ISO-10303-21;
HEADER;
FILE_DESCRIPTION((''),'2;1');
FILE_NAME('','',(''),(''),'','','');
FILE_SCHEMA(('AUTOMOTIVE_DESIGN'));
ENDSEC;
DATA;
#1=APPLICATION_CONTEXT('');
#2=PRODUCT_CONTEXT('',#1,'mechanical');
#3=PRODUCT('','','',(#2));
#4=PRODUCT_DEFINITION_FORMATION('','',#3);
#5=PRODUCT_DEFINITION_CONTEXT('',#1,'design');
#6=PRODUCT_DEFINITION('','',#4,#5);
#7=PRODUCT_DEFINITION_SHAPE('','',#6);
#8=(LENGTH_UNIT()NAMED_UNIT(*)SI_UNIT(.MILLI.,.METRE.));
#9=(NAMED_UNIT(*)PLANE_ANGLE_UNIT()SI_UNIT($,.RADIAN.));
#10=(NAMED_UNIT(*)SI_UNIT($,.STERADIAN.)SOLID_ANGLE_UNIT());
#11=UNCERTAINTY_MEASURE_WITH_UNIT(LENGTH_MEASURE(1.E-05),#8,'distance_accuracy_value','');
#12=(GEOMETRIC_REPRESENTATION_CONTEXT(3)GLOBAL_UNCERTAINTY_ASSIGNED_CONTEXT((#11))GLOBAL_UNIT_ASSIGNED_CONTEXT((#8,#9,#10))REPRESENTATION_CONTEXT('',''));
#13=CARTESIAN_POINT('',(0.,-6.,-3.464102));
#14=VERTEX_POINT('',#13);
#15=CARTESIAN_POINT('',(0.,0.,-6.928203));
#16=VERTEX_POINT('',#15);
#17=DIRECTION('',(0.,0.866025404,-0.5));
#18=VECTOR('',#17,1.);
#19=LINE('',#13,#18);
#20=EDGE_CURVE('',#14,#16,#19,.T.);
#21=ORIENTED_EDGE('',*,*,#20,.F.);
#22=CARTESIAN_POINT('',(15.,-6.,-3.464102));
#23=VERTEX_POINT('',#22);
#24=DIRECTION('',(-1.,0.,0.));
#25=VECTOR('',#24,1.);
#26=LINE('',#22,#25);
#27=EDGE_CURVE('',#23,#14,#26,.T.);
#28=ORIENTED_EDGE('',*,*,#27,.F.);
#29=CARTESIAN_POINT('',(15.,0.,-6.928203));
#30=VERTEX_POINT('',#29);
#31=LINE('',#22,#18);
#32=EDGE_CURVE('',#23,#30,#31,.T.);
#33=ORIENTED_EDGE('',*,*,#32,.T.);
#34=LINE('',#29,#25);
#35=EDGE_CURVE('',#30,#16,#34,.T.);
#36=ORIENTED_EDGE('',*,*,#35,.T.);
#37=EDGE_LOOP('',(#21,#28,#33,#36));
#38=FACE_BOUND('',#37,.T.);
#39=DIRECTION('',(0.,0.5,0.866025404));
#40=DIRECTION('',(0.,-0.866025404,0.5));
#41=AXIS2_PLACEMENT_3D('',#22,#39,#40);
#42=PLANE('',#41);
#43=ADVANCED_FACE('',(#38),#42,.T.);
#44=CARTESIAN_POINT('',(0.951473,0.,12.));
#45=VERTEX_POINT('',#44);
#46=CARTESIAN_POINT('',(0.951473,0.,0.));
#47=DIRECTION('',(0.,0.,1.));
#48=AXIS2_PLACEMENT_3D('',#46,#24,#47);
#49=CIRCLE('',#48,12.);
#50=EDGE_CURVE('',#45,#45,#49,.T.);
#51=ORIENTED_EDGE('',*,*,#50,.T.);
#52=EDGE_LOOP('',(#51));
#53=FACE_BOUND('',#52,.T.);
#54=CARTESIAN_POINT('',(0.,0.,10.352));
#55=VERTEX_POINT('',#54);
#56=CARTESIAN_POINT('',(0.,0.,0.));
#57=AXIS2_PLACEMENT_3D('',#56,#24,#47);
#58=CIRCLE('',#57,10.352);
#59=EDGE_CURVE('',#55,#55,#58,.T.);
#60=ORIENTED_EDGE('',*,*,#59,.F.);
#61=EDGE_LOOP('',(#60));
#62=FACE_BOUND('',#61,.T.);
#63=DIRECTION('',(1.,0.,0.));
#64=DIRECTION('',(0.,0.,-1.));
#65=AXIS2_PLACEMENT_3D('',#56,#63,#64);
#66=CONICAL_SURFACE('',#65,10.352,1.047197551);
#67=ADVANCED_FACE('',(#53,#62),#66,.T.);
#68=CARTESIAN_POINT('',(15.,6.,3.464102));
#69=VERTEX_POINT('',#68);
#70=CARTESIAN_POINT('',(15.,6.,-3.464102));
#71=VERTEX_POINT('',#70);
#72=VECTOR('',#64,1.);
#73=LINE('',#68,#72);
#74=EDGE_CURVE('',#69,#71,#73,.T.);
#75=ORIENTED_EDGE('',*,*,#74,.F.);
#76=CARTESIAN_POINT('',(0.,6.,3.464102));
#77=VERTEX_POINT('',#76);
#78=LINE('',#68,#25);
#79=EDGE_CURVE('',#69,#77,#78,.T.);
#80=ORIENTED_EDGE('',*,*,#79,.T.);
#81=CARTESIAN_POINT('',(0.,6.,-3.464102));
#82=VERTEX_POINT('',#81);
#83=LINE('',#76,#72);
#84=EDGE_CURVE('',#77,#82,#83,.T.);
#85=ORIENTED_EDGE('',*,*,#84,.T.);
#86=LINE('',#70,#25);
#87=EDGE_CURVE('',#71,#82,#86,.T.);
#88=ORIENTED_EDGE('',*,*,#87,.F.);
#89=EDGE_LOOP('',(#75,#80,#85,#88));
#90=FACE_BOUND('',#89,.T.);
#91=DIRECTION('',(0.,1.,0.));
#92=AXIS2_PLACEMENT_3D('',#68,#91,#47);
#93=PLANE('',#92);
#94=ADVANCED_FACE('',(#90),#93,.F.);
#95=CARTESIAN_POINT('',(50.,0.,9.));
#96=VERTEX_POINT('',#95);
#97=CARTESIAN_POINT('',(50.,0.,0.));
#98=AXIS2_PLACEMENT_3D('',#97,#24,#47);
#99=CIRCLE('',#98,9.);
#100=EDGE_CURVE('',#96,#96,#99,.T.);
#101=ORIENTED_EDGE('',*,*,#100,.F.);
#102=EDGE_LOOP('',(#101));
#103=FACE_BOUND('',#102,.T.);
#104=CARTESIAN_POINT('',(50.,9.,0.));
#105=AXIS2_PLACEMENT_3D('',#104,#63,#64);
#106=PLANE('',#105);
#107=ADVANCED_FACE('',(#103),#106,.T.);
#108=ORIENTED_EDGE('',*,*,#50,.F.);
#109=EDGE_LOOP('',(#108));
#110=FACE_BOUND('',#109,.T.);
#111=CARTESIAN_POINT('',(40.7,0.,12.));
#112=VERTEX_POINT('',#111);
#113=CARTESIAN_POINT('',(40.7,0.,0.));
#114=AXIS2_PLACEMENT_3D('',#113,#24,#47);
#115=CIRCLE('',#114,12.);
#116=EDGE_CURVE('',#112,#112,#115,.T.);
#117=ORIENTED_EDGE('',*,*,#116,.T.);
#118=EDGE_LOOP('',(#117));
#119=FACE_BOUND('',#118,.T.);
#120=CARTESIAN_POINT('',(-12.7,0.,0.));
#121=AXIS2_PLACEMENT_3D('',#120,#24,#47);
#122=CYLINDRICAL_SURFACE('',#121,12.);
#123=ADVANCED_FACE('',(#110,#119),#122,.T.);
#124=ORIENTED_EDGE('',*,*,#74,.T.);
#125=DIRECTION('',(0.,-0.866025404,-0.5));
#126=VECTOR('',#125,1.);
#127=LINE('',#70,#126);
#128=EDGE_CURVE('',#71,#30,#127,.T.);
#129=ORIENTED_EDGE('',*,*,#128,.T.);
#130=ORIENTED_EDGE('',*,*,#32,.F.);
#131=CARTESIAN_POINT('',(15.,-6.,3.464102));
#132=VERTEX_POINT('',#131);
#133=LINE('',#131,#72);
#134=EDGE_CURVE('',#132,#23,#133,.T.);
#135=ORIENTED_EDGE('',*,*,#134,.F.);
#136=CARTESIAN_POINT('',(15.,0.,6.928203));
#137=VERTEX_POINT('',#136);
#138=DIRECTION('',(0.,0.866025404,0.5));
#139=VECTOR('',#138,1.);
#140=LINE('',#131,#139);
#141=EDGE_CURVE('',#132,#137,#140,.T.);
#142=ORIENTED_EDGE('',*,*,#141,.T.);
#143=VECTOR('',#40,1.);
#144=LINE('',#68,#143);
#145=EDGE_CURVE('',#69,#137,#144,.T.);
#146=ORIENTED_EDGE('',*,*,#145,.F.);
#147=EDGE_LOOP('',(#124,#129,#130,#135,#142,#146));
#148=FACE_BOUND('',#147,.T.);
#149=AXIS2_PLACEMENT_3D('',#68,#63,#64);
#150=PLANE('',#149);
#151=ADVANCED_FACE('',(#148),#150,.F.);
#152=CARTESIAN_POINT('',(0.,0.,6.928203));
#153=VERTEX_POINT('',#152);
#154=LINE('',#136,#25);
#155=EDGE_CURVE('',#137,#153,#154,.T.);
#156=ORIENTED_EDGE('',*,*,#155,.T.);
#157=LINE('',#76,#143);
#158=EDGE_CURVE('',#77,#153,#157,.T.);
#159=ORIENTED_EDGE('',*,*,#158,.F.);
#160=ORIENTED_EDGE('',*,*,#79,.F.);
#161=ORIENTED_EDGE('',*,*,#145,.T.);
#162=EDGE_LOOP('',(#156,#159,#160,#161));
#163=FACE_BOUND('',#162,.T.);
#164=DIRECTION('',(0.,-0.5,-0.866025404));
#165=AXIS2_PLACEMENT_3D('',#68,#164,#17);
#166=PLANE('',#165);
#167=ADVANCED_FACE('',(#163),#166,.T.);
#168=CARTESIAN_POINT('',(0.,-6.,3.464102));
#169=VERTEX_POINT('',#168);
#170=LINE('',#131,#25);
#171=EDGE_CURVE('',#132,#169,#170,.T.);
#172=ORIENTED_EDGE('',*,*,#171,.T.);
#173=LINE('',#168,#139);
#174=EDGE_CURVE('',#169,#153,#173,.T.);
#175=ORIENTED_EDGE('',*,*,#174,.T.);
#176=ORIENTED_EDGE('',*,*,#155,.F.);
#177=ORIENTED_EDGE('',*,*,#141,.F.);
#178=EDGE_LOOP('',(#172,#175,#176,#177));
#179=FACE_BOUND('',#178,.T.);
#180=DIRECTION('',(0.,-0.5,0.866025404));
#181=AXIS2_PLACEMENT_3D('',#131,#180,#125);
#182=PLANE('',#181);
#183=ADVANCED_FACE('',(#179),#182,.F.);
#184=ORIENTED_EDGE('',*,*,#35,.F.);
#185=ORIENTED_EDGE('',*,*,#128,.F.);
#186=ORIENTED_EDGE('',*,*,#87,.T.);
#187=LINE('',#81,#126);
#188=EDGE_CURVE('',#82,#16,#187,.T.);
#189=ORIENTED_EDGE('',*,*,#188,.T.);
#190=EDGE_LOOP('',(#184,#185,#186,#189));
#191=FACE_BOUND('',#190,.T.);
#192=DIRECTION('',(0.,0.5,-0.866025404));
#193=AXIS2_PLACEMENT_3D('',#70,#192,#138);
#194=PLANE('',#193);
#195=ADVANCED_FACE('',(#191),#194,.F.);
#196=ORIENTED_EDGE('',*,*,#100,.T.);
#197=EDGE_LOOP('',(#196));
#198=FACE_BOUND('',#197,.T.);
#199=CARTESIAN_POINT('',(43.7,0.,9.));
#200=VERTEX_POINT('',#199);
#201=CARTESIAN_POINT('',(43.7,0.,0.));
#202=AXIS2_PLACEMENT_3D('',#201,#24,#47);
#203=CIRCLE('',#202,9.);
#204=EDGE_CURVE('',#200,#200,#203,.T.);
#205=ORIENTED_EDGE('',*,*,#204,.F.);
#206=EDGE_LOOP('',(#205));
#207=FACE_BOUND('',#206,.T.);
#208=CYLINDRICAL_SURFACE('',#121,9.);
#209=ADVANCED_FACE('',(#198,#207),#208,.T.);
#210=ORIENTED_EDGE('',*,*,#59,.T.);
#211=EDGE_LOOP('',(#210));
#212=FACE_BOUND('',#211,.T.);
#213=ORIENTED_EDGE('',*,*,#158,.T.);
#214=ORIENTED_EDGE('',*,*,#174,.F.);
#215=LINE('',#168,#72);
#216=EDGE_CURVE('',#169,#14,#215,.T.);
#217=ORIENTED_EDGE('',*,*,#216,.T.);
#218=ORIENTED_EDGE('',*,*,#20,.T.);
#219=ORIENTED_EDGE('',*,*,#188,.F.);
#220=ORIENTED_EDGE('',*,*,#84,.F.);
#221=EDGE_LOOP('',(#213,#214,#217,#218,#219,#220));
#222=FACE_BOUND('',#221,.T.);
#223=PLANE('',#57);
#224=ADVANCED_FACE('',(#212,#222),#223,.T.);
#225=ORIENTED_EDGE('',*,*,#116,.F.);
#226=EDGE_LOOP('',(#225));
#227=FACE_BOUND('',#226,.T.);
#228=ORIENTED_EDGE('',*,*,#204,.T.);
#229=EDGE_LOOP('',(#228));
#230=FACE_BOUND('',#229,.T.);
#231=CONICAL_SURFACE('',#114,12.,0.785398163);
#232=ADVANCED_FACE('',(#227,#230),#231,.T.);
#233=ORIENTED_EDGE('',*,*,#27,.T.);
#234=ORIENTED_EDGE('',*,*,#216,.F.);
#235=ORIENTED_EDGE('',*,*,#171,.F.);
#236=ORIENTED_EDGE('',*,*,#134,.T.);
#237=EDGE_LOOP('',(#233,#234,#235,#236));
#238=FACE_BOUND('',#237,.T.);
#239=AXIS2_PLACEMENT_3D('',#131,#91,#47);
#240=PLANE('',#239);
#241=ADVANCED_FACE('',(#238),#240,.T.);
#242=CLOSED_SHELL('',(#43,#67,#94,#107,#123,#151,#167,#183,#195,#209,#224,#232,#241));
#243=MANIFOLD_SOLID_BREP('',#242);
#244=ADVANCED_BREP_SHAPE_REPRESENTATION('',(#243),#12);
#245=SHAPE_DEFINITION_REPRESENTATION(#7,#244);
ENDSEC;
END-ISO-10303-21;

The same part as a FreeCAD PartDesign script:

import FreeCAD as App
import Part
import Sketcher
from FreeCAD import Vector
Q = App.Units.Quantity


def add_polygon(sketch, points):
    """Adds a closed chain of lines whose ends are joined by coincident constraints."""
    first, n = sketch.GeometryCount, len(points)
    for a, b in zip(points, points[1:] + points[:1]):
        sketch.addGeometry(Part.LineSegment(App.Vector(*a, 0), App.Vector(*b, 0)), False)
    for i in range(n):
        sketch.addConstraint(Sketcher.Constraint("Coincident", first + i, 2, first + (i + 1) % n, 1))

doc = App.newDocument("Part")
params = doc.addObject("Spreadsheet::Sheet", "Params")
for row, (alias, value) in enumerate([
    ("sketch1_width", "50 mm"),
    ("sketch1_height", "9 mm"),
    ("sketch1_width2", "6.3 mm"),
    ("revolution_angle", "360 deg"),
    ("pocket1_length", "15 mm"),
], start=1):
    params.set(f"A{row}", alias)
    params.set(f"B{row}", "=" + value)
    params.setAlias(f"B{row}", alias)

body = doc.addObject("PartDesign::Body", "Body")

# Sketch on XY plane
sketch1 = body.newObject("Sketcher::SketchObject", "Sketch")
sketch1.AttachmentSupport = (doc.getObject("XY_Plane"), [""])
sketch1.MapMode = "FlatFace"
add_polygon(sketch1, [(0, 10.4), (0, 0), (50, 0), (50, 9), (43.7, 9), (40.7, 12), (1, 12)])  # lines 0-6
sketch1.addConstraint(Sketcher.Constraint("Vertical", 0))
sketch1.addConstraint(Sketcher.Constraint("Horizontal", 1))
sketch1.addConstraint(Sketcher.Constraint("Vertical", 2))
sketch1.addConstraint(Sketcher.Constraint("Horizontal", 3))
sketch1.addConstraint(Sketcher.Constraint("Horizontal", 5))
sketch1.addConstraint(Sketcher.Constraint("Coincident", 0, 2, -1, 1))
sketch1.addConstraint(Sketcher.Constraint("DistanceX", 1, 1, 1, 2, 50.0))
sketch1.addConstraint(Sketcher.Constraint("DistanceY", 2, 1, 2, 2, 9.0))
sketch1.addConstraint(Sketcher.Constraint("Angle", 4, Q("135 deg")))
sketch1.addConstraint(Sketcher.Constraint("Angle", 6, Q("-120 deg")))
sketch1.addConstraint(Sketcher.Constraint("DistanceX", 3, 2, 3, 1, 6.3))
sketch1.addConstraint(Sketcher.Constraint("DistanceY", -1, 1, 4, 2, 12.0))
sketch1.addConstraint(Sketcher.Constraint("DistanceY", 0, 2, 0, 1, 10.352))
sketch1.setExpression("Constraints[13]", "Params.sketch1_width")
sketch1.setExpression("Constraints[14]", "Params.sketch1_height")
sketch1.setExpression("Constraints[17]", "Params.sketch1_width2")
revolution = body.newObject("PartDesign::Revolution", "Revolution")
revolution.Profile = sketch1
revolution.ReferenceAxis = (sketch1, ["H_Axis"])
revolution.setExpression("Angle", "Params.revolution_angle")

# Sketch on YZ plane
sketch2 = body.newObject("Sketcher::SketchObject", "Sketch001")
sketch2.AttachmentSupport = (doc.getObject("YZ_Plane"), [""])
sketch2.MapMode = "FlatFace"
add_polygon(sketch2, [(6, 3), (6, -3), (0, -7), (-6, -3), (-6, 3), (0, 7)])  # lines 0-5
sketch2.addConstraint(Sketcher.Constraint("Vertical", 0))
sketch2.addConstraint(Sketcher.Constraint("Vertical", 3))
sketch2.addConstraint(Sketcher.Constraint("Symmetric", 0, 2, 3, 2, -1, 1))
sketch2.addConstraint(Sketcher.Constraint("Symmetric", 1, 2, 4, 2, -1, 1))
sketch2.addConstraint(Sketcher.Constraint("PointOnObject", 1, 2, -2))
sketch2.addConstraint(Sketcher.Constraint("Parallel", 2, 5))
sketch2.addConstraint(Sketcher.Constraint("Horizontal", 0, 2, 2, 2))
sketch2.addConstraint(Sketcher.Constraint("Angle", 1, Q("-150 deg")))
sketch2.addConstraint(Sketcher.Constraint("DistanceX", -1, 1, 0, 2, 6.0))
sketch2.addConstraint(Sketcher.Constraint("DistanceY", 0, 2, -1, 1, 3.464102))
pocket1 = body.newObject("PartDesign::Pocket", "Pocket")
pocket1.Profile = sketch2
pocket1.setExpression("Length", "Params.pocket1_length")
pocket1.Reversed = True

doc.recompute()
